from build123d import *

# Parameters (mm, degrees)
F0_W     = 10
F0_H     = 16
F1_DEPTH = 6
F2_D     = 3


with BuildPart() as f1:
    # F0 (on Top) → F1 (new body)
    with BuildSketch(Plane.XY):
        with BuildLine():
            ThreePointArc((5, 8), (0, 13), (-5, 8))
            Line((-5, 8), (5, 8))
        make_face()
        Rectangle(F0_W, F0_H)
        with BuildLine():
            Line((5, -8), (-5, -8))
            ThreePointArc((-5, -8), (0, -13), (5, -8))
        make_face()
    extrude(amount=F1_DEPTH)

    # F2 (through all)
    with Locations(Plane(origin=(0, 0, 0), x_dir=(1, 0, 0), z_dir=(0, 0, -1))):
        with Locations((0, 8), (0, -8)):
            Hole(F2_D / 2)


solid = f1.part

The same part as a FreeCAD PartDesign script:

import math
import FreeCAD as App
import Part
import Sketcher
Q = App.Units.Quantity

doc = App.newDocument("Part")
params = doc.addObject("Spreadsheet::Sheet", "Params")
for row, (alias, value) in enumerate([
    ("sketch1_radius", "5 mm"),
    ("sketch1_height", "16 mm"),
    ("pad1_length", "6 mm"),
    ("sketch2_diameter", "3 mm"),
    ("hole_diameter", "3 mm"),
], start=1):
    params.set(f"A{row}", alias)
    params.set(f"B{row}", "=" + value)
    params.setAlias(f"B{row}", alias)

body = doc.addObject("PartDesign::Body", "Body")

# Sketch on XY plane
sketch1 = body.newObject("Sketcher::SketchObject", "Sketch")
sketch1.AttachmentSupport = (doc.getObject("XY_Plane"), [""])
sketch1.MapMode = "FlatFace"
sketch1.addGeometry(Part.ArcOfCircle(Part.Circle(App.Vector(0, 8, 0), App.Vector(0, 0, 1), 5), math.radians(0), math.radians(180)), False)
sketch1.addGeometry(Part.LineSegment(App.Vector(-5, 8, 0), App.Vector(-5, -8, 0)), False)
sketch1.addGeometry(Part.ArcOfCircle(Part.Circle(App.Vector(0, -8, 0), App.Vector(0, 0, 1), 5), math.radians(180), math.radians(360)), False)
sketch1.addGeometry(Part.LineSegment(App.Vector(5, -8, 0), App.Vector(5, 8, 0)), False)
sketch1.addConstraint(Sketcher.Constraint("Tangent", 0, 2, 1, 1))
sketch1.addConstraint(Sketcher.Constraint("Tangent", 1, 2, 2, 1))
sketch1.addConstraint(Sketcher.Constraint("Tangent", 2, 2, 3, 1))
sketch1.addConstraint(Sketcher.Constraint("Tangent", 3, 2, 0, 1))
sketch1.addConstraint(Sketcher.Constraint("Vertical", 1))
sketch1.addConstraint(Sketcher.Constraint("Vertical", 3))
sketch1.addConstraint(Sketcher.Constraint("Symmetric", 0, 3, 2, 3, -1, 1))
sketch1.addConstraint(Sketcher.Constraint("Radius", 0, Q("5 mm")))
sketch1.addConstraint(Sketcher.Constraint("DistanceY", 1, 2, 1, 1, Q("16 mm")))
sketch1.setExpression("Constraints[7]", "Params.sketch1_radius")
sketch1.setExpression("Constraints[8]", "Params.sketch1_height")
pad1 = body.newObject("PartDesign::Pad", "Pad")
pad1.Profile = sketch1
pad1.setExpression("Length", "Params.pad1_length")

# Sketch on XY plane
sketch2 = body.newObject("Sketcher::SketchObject", "Sketch001")
sketch2.AttachmentSupport = (doc.getObject("XY_Plane"), [""])
sketch2.MapMode = "FlatFace"
sketch2.addGeometry(Part.Circle(App.Vector(0, -8, 0), App.Vector(0, 0, 1), 1.5), False)
sketch2.addGeometry(Part.Circle(App.Vector(0, 8, 0), App.Vector(0, 0, 1), 1.5), False)
sketch2.addConstraint(Sketcher.Constraint("Equal", 0, 1))
sketch2.addConstraint(Sketcher.Constraint("Symmetric", 0, 3, 1, 3, -1, 1))
sketch2.addConstraint(Sketcher.Constraint("PointOnObject", 0, 3, -2))
sketch2.addConstraint(Sketcher.Constraint("Diameter", 0, Q("3 mm")))
sketch2.addConstraint(Sketcher.Constraint("DistanceY", 0, 3, -1, 1, Q("8 mm")))
sketch2.setExpression("Constraints[3]", "Params.sketch2_diameter")
doc.recompute()
hole = body.newObject("PartDesign::Hole", "Hole")
hole.Profile = sketch2
hole.ThreadType = "None"
hole.setExpression("Diameter", "Params.hole_diameter")
hole.DepthType = "ThroughAll"
hole.Reversed = True

doc.recompute()
